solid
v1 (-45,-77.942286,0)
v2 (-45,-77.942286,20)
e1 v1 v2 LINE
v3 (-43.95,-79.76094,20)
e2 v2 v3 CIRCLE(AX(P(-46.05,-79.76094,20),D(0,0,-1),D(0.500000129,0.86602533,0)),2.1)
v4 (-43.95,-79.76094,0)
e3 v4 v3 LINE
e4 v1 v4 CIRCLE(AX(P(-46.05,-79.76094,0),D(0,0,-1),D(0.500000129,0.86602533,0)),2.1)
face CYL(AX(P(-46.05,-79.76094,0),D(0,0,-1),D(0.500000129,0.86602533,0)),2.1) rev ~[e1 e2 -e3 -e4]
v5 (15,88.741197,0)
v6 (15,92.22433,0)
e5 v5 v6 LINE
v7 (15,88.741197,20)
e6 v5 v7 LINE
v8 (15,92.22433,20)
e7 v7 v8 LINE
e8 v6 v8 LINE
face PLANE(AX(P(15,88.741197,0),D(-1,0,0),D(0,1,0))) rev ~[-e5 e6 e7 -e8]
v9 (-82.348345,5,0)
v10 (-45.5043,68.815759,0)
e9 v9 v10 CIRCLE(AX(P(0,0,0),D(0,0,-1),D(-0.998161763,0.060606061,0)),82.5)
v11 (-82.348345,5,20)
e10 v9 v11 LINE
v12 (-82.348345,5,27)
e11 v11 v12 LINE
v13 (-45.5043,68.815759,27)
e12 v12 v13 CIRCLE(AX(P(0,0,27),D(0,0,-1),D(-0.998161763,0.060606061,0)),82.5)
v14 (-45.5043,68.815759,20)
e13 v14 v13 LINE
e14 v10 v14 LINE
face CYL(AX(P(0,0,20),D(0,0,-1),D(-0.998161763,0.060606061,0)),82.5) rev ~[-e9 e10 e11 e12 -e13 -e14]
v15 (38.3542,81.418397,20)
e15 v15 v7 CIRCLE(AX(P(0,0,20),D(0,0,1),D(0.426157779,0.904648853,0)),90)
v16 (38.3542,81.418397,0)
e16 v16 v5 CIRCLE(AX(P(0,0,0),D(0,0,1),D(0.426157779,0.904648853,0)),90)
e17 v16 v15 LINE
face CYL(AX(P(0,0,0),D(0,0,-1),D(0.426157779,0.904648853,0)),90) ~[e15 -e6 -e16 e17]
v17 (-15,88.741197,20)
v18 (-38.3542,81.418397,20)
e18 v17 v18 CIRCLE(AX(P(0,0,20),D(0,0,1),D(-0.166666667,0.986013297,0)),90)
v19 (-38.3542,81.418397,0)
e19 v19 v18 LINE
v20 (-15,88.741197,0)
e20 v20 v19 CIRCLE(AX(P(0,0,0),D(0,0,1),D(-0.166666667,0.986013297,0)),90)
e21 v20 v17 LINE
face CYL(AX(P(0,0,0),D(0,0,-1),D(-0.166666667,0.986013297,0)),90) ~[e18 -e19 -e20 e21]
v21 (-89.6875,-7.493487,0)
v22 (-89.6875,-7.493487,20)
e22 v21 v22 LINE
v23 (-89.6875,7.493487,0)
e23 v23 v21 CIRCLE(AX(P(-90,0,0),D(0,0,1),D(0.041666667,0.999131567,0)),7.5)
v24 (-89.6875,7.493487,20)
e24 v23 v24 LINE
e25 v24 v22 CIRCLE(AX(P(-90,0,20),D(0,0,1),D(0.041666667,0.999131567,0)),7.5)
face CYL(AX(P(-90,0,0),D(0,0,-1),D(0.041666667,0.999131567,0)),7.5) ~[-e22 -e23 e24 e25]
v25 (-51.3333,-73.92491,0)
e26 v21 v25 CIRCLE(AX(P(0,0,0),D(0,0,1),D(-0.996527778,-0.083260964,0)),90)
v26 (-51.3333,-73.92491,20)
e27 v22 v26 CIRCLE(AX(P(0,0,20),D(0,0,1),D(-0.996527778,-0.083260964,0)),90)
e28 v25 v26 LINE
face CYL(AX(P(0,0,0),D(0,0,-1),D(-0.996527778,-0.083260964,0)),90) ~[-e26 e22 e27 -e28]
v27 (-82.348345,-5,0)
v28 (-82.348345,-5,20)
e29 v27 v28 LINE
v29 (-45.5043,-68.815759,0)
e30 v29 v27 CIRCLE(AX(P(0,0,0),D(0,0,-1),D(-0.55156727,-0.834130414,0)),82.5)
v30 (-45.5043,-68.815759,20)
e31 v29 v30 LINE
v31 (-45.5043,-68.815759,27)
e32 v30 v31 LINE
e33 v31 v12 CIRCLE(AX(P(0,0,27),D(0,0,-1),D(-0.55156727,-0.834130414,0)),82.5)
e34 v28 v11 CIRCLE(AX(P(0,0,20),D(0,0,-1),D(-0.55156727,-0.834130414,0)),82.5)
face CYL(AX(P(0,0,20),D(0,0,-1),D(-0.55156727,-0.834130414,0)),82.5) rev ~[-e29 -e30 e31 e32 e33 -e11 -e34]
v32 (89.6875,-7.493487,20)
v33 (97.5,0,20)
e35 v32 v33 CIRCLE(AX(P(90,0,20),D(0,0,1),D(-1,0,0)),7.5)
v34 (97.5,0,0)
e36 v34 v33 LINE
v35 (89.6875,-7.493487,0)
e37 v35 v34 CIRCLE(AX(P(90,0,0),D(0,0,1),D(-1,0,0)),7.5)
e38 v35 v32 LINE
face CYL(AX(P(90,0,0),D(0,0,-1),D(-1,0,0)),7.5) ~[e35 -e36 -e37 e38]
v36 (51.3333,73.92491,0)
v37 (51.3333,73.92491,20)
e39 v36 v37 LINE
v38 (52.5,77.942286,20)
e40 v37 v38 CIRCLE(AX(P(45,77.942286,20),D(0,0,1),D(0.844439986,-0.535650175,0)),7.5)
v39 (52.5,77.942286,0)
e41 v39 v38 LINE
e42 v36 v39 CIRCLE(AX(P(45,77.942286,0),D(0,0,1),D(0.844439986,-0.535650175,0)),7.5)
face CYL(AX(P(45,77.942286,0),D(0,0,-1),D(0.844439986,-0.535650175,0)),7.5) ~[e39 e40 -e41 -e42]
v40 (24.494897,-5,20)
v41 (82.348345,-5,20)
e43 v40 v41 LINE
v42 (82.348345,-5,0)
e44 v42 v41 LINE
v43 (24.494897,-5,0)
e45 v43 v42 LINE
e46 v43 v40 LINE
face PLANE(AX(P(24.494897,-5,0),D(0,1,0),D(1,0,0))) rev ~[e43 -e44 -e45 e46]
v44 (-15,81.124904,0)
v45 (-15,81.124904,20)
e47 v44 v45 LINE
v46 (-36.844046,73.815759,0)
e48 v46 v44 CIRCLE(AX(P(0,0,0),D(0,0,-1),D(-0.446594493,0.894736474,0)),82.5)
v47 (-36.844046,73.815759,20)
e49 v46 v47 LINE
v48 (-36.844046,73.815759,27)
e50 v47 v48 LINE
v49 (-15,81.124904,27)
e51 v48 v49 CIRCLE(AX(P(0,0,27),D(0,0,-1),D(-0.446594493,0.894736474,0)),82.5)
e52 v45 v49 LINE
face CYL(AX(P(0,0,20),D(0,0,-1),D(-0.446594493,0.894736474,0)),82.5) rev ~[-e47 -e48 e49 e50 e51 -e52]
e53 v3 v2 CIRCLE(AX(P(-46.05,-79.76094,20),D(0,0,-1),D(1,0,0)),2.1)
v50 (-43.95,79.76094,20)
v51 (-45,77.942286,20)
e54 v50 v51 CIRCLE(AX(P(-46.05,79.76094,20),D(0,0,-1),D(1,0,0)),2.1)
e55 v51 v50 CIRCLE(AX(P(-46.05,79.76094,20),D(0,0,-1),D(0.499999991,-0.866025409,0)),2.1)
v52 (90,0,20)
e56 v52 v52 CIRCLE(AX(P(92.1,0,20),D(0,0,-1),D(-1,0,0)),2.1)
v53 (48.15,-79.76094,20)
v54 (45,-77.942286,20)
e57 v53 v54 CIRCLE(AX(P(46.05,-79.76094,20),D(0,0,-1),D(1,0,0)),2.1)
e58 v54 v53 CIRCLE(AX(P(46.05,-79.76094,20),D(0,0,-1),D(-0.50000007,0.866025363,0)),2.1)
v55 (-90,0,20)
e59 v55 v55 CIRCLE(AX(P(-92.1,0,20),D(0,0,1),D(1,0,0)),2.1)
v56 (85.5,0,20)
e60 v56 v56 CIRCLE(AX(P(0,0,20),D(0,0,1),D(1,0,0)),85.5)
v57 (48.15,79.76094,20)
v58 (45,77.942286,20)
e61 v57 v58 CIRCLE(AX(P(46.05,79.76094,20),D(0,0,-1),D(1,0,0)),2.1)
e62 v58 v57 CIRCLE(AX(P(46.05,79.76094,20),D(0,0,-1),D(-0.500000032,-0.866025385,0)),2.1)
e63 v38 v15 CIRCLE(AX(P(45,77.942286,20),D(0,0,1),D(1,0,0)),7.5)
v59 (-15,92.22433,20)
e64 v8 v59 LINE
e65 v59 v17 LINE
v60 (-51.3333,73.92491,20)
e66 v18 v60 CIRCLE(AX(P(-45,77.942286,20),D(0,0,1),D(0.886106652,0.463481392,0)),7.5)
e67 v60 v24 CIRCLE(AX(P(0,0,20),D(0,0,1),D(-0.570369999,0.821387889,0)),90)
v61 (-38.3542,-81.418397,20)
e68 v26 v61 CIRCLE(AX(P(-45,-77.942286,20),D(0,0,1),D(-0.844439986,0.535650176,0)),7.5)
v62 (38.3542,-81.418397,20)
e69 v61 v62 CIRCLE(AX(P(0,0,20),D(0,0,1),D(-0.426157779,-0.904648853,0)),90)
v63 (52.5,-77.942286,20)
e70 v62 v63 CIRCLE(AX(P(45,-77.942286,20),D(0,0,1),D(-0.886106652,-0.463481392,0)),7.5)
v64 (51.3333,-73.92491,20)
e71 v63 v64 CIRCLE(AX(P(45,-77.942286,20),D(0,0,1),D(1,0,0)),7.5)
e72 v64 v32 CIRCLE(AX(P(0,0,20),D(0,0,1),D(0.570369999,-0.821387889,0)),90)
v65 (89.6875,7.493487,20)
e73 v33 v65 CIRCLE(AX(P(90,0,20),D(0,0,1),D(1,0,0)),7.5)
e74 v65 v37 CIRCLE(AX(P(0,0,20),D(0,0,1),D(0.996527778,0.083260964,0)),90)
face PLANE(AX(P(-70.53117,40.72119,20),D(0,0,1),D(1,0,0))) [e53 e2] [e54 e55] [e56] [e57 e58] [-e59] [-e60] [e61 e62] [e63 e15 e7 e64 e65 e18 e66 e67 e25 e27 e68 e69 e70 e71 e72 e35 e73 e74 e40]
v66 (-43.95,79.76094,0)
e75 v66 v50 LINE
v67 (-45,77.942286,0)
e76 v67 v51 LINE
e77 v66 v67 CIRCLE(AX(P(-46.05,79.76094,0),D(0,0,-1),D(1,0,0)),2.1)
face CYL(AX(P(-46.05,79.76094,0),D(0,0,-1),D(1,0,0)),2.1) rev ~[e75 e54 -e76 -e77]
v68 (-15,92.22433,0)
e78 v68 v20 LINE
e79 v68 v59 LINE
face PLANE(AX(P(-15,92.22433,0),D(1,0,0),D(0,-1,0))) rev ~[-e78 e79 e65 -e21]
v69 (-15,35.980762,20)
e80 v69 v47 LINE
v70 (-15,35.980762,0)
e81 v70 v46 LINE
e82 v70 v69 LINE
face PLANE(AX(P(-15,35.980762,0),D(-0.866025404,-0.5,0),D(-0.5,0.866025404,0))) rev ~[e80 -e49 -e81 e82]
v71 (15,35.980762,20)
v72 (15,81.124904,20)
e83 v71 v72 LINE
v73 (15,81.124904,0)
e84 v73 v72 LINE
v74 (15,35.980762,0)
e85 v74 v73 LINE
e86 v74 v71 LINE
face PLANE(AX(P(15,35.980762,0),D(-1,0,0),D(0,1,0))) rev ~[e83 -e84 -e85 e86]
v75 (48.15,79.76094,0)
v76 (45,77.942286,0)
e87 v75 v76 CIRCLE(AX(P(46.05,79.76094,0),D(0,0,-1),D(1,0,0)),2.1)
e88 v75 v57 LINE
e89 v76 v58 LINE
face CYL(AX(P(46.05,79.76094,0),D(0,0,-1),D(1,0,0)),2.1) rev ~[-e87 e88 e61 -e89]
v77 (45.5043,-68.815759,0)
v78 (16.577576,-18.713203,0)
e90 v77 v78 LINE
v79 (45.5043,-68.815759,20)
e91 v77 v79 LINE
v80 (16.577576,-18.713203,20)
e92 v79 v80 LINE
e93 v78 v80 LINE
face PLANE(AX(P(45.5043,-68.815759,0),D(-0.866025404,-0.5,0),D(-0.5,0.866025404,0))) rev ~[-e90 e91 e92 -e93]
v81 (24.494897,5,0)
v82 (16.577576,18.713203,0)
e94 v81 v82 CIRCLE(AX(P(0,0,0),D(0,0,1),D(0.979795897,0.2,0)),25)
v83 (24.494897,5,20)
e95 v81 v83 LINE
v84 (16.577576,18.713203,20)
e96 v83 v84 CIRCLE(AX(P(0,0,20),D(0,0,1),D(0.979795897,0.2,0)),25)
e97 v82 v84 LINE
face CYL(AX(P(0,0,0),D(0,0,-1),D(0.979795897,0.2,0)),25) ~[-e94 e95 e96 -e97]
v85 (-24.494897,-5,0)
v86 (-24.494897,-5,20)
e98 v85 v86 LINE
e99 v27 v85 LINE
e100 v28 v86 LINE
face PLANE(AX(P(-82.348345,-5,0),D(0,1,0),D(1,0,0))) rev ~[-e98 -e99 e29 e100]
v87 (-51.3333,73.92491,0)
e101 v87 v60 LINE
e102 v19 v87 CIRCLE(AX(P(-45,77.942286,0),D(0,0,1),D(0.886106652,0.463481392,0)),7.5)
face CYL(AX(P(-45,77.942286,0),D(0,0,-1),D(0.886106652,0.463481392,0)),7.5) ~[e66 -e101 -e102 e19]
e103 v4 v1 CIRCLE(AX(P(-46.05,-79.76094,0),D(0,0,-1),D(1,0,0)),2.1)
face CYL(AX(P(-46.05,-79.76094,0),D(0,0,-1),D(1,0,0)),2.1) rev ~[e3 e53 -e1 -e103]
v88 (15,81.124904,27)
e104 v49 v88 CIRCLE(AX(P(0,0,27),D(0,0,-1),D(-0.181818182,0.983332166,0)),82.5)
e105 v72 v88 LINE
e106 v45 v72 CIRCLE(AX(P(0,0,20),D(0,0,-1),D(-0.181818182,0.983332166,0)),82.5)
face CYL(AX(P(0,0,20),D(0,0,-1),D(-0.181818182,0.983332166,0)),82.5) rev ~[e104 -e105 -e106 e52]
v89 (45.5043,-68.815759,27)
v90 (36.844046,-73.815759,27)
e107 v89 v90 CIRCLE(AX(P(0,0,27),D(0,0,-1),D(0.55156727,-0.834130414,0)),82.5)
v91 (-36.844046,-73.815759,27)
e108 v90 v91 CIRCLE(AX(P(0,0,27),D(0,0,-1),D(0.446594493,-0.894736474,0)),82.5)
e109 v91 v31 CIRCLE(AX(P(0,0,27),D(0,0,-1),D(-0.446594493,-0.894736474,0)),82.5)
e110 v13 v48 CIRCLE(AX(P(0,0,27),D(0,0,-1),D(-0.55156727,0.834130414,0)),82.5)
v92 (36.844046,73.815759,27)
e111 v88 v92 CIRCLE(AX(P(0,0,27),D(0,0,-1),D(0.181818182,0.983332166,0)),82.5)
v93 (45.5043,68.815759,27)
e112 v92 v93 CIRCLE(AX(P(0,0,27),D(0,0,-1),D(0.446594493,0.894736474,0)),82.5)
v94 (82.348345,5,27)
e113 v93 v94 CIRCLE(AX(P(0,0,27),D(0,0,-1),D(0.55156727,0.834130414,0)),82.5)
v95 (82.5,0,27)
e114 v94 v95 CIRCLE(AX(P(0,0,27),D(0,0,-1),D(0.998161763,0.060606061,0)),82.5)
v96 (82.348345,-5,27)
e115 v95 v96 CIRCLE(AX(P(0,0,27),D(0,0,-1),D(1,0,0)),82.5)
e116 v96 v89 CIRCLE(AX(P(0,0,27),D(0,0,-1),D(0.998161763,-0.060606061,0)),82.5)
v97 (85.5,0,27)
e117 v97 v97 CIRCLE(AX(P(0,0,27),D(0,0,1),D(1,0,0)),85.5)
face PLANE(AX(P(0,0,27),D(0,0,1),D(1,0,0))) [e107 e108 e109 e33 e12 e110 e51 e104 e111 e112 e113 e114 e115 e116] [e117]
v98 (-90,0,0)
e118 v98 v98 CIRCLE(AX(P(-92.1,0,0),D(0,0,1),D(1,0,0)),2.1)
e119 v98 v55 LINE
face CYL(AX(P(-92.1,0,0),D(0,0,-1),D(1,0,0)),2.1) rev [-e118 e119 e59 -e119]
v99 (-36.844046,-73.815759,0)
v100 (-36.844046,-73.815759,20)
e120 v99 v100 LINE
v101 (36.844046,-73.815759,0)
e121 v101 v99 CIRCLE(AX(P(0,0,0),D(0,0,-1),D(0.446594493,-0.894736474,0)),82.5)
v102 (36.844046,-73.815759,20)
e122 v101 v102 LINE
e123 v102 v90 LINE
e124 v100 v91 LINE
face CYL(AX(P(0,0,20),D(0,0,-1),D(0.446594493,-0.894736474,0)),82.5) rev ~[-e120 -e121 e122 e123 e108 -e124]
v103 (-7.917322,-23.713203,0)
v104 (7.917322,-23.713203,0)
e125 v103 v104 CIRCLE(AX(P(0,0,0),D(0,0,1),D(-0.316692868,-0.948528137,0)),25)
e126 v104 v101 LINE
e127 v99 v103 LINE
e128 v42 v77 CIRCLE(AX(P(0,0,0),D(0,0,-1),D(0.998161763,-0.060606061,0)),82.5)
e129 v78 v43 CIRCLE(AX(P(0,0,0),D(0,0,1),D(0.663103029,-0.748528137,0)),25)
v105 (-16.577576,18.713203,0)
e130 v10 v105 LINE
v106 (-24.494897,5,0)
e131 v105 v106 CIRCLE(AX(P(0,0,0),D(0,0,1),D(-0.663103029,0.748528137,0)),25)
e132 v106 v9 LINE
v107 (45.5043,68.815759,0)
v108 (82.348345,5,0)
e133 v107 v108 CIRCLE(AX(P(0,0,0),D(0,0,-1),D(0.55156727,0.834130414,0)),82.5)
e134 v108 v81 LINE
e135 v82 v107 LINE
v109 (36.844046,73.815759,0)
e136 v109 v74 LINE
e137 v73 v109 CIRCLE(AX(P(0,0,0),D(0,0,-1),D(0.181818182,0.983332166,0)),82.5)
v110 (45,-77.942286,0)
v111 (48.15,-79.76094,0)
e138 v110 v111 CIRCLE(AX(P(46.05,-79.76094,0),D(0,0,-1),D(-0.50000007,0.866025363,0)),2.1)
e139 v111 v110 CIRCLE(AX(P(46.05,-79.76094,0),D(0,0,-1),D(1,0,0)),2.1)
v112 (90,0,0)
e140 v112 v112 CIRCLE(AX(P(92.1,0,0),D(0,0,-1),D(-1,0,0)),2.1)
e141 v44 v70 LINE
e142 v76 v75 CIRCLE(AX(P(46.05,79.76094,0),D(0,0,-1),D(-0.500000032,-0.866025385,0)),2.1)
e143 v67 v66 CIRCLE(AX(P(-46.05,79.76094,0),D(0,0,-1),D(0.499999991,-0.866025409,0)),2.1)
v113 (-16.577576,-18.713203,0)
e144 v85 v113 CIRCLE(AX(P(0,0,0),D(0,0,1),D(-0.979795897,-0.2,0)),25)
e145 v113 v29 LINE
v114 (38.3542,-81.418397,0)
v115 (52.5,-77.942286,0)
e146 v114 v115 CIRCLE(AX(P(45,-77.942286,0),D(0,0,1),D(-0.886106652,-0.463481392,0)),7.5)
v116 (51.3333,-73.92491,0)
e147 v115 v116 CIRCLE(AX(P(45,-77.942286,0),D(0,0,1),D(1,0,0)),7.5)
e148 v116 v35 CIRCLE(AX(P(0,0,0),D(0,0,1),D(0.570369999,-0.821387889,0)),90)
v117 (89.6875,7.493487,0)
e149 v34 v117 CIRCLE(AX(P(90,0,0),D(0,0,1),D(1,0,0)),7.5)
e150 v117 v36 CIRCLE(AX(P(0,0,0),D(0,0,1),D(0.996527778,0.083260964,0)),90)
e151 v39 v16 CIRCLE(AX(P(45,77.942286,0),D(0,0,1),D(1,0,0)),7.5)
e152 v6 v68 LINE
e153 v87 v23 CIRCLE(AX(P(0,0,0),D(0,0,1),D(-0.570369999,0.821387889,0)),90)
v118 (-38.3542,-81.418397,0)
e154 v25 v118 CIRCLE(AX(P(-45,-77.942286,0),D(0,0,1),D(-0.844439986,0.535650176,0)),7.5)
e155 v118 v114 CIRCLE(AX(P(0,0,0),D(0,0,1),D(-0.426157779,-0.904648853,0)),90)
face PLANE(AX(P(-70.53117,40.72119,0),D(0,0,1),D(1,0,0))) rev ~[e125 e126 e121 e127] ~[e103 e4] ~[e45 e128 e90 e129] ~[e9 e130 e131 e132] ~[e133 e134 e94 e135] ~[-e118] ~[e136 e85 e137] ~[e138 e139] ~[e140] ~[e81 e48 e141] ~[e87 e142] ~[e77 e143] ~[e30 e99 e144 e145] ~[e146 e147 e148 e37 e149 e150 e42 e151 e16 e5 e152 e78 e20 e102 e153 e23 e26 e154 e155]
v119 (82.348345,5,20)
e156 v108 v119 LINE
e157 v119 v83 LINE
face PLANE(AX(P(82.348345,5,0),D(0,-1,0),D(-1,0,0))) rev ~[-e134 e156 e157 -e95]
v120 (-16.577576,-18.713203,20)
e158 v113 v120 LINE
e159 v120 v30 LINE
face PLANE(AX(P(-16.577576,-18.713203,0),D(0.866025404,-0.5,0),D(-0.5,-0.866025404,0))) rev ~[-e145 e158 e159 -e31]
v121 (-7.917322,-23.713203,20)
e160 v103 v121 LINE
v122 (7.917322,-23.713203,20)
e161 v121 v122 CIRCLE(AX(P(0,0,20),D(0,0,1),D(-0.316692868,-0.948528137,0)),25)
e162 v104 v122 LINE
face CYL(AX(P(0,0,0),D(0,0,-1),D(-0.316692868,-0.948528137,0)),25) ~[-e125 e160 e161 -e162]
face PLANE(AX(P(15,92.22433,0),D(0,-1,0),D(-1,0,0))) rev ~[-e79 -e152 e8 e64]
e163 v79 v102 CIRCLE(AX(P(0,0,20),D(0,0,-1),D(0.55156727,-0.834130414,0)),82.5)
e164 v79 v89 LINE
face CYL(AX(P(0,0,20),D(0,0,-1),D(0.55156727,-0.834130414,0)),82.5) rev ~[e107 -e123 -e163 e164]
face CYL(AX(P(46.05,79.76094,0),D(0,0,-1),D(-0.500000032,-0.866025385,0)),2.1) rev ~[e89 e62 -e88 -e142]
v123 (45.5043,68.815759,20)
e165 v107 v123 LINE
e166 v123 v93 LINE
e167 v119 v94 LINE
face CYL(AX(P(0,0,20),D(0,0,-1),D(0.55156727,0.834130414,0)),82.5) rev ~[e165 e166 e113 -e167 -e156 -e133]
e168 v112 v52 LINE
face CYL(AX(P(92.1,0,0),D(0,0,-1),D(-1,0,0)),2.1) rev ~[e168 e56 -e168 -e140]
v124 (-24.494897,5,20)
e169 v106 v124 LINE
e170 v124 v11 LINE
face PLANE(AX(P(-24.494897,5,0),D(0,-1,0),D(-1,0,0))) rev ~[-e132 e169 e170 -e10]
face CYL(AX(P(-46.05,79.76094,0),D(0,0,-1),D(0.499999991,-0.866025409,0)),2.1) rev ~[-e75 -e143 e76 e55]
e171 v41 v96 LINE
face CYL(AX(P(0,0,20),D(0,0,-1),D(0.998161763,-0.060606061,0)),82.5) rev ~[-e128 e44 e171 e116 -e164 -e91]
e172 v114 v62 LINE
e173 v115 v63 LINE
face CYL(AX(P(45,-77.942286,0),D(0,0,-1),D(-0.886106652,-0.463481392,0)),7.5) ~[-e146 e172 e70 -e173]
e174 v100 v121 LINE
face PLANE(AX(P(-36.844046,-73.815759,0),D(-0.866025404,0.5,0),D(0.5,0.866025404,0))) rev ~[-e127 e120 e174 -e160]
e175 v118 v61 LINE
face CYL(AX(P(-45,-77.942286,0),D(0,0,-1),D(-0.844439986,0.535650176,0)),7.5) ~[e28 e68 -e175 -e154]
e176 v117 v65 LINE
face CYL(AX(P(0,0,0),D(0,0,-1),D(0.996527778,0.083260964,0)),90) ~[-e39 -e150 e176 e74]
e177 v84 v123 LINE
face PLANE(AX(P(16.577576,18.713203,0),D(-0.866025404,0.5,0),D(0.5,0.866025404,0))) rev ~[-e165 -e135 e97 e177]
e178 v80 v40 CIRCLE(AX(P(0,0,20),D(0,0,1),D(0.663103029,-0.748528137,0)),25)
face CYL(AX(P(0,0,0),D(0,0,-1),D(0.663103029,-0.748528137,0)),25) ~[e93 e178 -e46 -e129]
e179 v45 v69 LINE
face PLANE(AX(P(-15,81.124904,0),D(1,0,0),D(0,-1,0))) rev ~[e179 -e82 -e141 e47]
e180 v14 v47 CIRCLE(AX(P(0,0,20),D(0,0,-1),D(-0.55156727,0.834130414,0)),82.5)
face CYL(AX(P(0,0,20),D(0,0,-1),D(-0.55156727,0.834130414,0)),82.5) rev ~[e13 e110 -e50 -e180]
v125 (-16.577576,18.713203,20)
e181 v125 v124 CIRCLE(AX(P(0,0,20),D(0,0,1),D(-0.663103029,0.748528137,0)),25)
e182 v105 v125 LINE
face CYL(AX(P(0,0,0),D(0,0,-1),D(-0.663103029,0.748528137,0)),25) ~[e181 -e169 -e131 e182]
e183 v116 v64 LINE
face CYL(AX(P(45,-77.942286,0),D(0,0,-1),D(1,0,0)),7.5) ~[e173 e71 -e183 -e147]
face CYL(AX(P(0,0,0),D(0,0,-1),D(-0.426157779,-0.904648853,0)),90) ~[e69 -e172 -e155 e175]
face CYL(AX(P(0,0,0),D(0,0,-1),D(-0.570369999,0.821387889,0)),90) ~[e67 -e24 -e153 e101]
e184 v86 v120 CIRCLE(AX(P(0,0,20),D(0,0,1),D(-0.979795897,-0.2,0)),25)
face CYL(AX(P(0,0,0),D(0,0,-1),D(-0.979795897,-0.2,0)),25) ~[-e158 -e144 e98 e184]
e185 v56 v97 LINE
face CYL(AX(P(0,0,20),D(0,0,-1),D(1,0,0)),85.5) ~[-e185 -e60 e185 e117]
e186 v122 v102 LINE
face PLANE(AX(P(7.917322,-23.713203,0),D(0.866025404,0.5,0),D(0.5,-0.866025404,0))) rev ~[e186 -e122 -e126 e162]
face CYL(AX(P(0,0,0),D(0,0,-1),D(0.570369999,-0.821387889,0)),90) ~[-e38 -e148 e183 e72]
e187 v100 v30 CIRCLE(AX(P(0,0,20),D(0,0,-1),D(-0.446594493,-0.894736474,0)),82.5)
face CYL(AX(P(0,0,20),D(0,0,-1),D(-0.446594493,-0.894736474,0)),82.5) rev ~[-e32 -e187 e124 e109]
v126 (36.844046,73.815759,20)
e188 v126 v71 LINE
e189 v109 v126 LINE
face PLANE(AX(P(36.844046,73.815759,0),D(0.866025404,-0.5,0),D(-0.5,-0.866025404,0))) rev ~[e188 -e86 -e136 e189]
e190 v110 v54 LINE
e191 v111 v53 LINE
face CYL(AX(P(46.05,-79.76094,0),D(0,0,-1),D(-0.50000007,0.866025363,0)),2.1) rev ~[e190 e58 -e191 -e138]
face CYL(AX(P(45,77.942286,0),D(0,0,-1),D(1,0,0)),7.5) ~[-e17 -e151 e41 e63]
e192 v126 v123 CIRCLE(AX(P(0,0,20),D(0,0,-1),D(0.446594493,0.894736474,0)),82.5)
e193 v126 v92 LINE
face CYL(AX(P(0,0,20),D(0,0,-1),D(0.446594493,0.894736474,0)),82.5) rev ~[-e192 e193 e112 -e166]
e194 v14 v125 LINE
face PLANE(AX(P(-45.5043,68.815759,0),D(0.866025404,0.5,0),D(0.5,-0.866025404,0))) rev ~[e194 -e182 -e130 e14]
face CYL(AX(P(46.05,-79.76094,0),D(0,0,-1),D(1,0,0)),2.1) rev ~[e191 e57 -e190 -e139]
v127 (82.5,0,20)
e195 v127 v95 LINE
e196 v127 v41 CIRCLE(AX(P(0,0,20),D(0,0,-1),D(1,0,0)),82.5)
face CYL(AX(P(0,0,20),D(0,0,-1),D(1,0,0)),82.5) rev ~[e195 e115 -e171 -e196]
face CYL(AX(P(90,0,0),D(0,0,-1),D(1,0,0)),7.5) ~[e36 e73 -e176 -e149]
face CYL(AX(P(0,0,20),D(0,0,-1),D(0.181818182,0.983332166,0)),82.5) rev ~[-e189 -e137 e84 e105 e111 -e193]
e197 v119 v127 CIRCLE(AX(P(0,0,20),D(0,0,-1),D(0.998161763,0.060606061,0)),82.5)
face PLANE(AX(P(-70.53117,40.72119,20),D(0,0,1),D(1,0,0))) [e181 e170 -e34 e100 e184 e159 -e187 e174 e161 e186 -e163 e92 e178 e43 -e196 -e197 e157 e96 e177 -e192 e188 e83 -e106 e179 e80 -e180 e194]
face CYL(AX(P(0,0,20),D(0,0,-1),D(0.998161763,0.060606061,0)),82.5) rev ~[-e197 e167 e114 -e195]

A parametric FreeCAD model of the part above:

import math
import FreeCAD as App
import Part
import Sketcher

V = App.Vector
Q = App.Units.Quantity

doc = App.newDocument("Part")
body = doc.addObject("PartDesign::Body", "Body")

# Sketch on XY plane
sketch1 = doc.addObject("Sketcher::SketchObject", "Sketch")
body.addObject(sketch1)
sketch1.AttachmentSupport = (doc.XY_Plane, [""])
sketch1.MapMode = "FlatFace"
sketch1.addGeometry([
    Part.ArcOfCircle(Part.Circle(V(0, 0, 0), V(0, 0, 1), 90), math.radians(124.776031), math.radians(175.223969)),  # 0
    Part.ArcOfCircle(Part.Circle(V(-90, 0, 0), V(0, 0, 1), 7.5), math.radians(87.611985), math.radians(272.388015)),  # 1
    Part.ArcOfCircle(Part.Circle(V(0, 0, 0), V(0, 0, 1), 90), math.radians(-175.223969), math.radians(-124.776031)),  # 2
    Part.ArcOfCircle(Part.Circle(V(-45, -77.942286, 0), V(0, 0, 1), 7.5), math.radians(147.611985), math.radians(332.388015)),  # 3
    Part.ArcOfCircle(Part.Circle(V(0, 0, 0), V(0, 0, 1), 90), math.radians(-115.223969), math.radians(-64.776031)),  # 4
    Part.ArcOfCircle(Part.Circle(V(45, -77.942286, 0), V(0, 0, 1), 7.5), math.radians(-152.388015), math.radians(0)),  # 5
    Part.ArcOfCircle(Part.Circle(V(45, -77.942286, 0), V(0, 0, 1), 7.5), math.radians(0), math.radians(32.388015)),  # 6
    Part.ArcOfCircle(Part.Circle(V(0, 0, 0), V(0, 0, 1), 90), math.radians(-55.223969), math.radians(-4.776031)),  # 7
    Part.ArcOfCircle(Part.Circle(V(90, 0, 0), V(0, 0, 1), 7.5), math.radians(-92.388015), math.radians(0)),  # 8
    Part.ArcOfCircle(Part.Circle(V(90, 0, 0), V(0, 0, 1), 7.5), math.radians(0), math.radians(92.388015)),  # 9
    Part.ArcOfCircle(Part.Circle(V(0, 0, 0), V(0, 0, 1), 90), math.radians(4.776031), math.radians(55.223969)),  # 10
    Part.ArcOfCircle(Part.Circle(V(45, 77.942286, 0), V(0, 0, 1), 7.5), math.radians(-32.388015), math.radians(0)),  # 11
    Part.ArcOfCircle(Part.Circle(V(45, 77.942286, 0), V(0, 0, 1), 7.5), math.radians(0), math.radians(152.388015)),  # 12
    Part.ArcOfCircle(Part.Circle(V(0, 0, 0), V(0, 0, 1), 90), math.radians(64.776031), math.radians(80.405932)),  # 13
    Part.LineSegment(V(15, 88.741197, 0), V(15, 92.22433, 0)),  # 14
    Part.LineSegment(V(15, 92.22433, 0), V(-15, 92.22433, 0)),  # 15
    Part.LineSegment(V(-15, 92.22433, 0), V(-15, 88.741197, 0)),  # 16
    Part.ArcOfCircle(Part.Circle(V(0, 0, 0), V(0, 0, 1), 90), math.radians(99.594068), math.radians(115.223969)),  # 17
    Part.ArcOfCircle(Part.Circle(V(-45, 77.942286, 0), V(0, 0, 1), 7.5), math.radians(27.611985), math.radians(212.388015)),  # 18
    Part.ArcOfCircle(Part.Circle(V(-46.05, -79.76094, 0), V(0, 0, 1), 2.1), math.radians(0), math.radians(59.999991)),  # 19
    Part.ArcOfCircle(Part.Circle(V(-46.05, -79.76094, 0), V(0, 0, 1), 2.1), math.radians(59.999991), math.radians(360)),  # 20
    Part.Circle(V(-92.1, 0, 0), V(0, 0, 1), 2.1),  # 21
    Part.ArcOfCircle(Part.Circle(V(46.05, -79.76094, 0), V(0, 0, 1), 2.1), math.radians(0), math.radians(120.000005)),  # 22
    Part.ArcOfCircle(Part.Circle(V(46.05, -79.76094, 0), V(0, 0, 1), 2.1), math.radians(120.000005), math.radians(360)),  # 23
    Part.Circle(V(92.1, 0, 0), V(0, 0, 1), 2.1),  # 24
    Part.ArcOfCircle(Part.Circle(V(0, 0, 0), V(0, 0, 1), 82.5), math.radians(-176.525399), math.radians(-123.474601)),  # 25
    Part.LineSegment(V(-82.348345, -5, 0), V(-24.494897, -5, 0)),  # 26
    Part.ArcOfCircle(Part.Circle(V(0, 0, 0), V(0, 0, 1), 25), math.radians(-168.463041), math.radians(-131.536959)),  # 27
    Part.LineSegment(V(-16.577576, -18.713203, 0), V(-45.5043, -68.815759, 0)),  # 28
    Part.LineSegment(V(-24.494897, 5, 0), V(-82.348345, 5, 0)),  # 29
    Part.ArcOfCircle(Part.Circle(V(0, 0, 0), V(0, 0, 1), 82.5), math.radians(123.474601), math.radians(176.525399)),  # 30
    Part.LineSegment(V(-45.5043, 68.815759, 0), V(-16.577576, 18.713203, 0)),  # 31
    Part.ArcOfCircle(Part.Circle(V(0, 0, 0), V(0, 0, 1), 25), math.radians(131.536959), math.radians(168.463041)),  # 32
    Part.LineSegment(V(-15, 35.980762, 0), V(-36.844046, 73.815759, 0)),  # 33
    Part.ArcOfCircle(Part.Circle(V(0, 0, 0), V(0, 0, 1), 82.5), math.radians(100.475682), math.radians(116.525399)),  # 34
    Part.LineSegment(V(-15, 81.124904, 0), V(-15, 35.980762, 0)),  # 35
    Part.ArcOfCircle(Part.Circle(V(0, 0, 0), V(0, 0, 1), 82.5), math.radians(63.474601), math.radians(79.524318)),  # 36
    Part.LineSegment(V(36.844046, 73.815759, 0), V(15, 35.980762, 0)),  # 37
    Part.LineSegment(V(15, 35.980762, 0), V(15, 81.124904, 0)),  # 38
    Part.LineSegment(V(16.577576, 18.713203, 0), V(45.5043, 68.815759, 0)),  # 39
    Part.ArcOfCircle(Part.Circle(V(0, 0, 0), V(0, 0, 1), 82.5), math.radians(3.474601), math.radians(56.525399)),  # 40
    Part.LineSegment(V(82.348345, 5, 0), V(24.494897, 5, 0)),  # 41
    Part.ArcOfCircle(Part.Circle(V(0, 0, 0), V(0, 0, 1), 25), math.radians(11.536959), math.radians(48.463041)),  # 42
    Part.LineSegment(V(24.494897, -5, 0), V(82.348345, -5, 0)),  # 43
    Part.ArcOfCircle(Part.Circle(V(0, 0, 0), V(0, 0, 1), 82.5), math.radians(-56.525399), math.radians(-3.474601)),  # 44
    Part.LineSegment(V(45.5043, -68.815759, 0), V(16.577576, -18.713203, 0)),  # 45
    Part.ArcOfCircle(Part.Circle(V(0, 0, 0), V(0, 0, 1), 25), math.radians(-48.463041), math.radians(-11.536959)),  # 46
    Part.LineSegment(V(7.917322, -23.713203, 0), V(36.844046, -73.815759, 0)),  # 47
    Part.ArcOfCircle(Part.Circle(V(0, 0, 0), V(0, 0, 1), 82.5), math.radians(-116.525399), math.radians(-63.474601)),  # 48
    Part.LineSegment(V(-36.844046, -73.815759, 0), V(-7.917322, -23.713203, 0)),  # 49
    Part.ArcOfCircle(Part.Circle(V(0, 0, 0), V(0, 0, 1), 25), math.radians(-108.463041), math.radians(-71.536959)),  # 50
    Part.ArcOfCircle(Part.Circle(V(-46.05, 79.76094, 0), V(0, 0, 1), 2.1), math.radians(0), math.radians(299.999999)),  # 51
    Part.ArcOfCircle(Part.Circle(V(-46.05, 79.76094, 0), V(0, 0, 1), 2.1), math.radians(-60.000001), math.radians(0)),  # 52
    Part.ArcOfCircle(Part.Circle(V(46.05, 79.76094, 0), V(0, 0, 1), 2.1), math.radians(0), math.radians(239.999998)),  # 53
    Part.ArcOfCircle(Part.Circle(V(46.05, 79.76094, 0), V(0, 0, 1), 2.1), math.radians(-120.000002), math.radians(0)),  # 54
], False)
sketch1.addConstraint([
    Sketcher.Constraint("Coincident", 0, 2, 1, 1),
    Sketcher.Constraint("Coincident", 1, 2, 2, 1),
    Sketcher.Constraint("Coincident", 2, 2, 3, 1),
    Sketcher.Constraint("Coincident", 3, 2, 4, 1),
    Sketcher.Constraint("Coincident", 4, 2, 5, 1),
    Sketcher.Constraint("Tangent", 5, 2, 6, 1),
    Sketcher.Constraint("Coincident", 6, 2, 7, 1),
    Sketcher.Constraint("Coincident", 7, 2, 8, 1),
    Sketcher.Constraint("Tangent", 8, 2, 9, 1),
    Sketcher.Constraint("Coincident", 9, 2, 10, 1),
    Sketcher.Constraint("Coincident", 10, 2, 11, 1),
    Sketcher.Constraint("Tangent", 11, 2, 12, 1),
    Sketcher.Constraint("Coincident", 12, 2, 13, 1),
    Sketcher.Constraint("Coincident", 13, 2, 14, 1),
    Sketcher.Constraint("Coincident", 14, 2, 15, 1),
    Sketcher.Constraint("Coincident", 15, 2, 16, 1),
    Sketcher.Constraint("Coincident", 16, 2, 17, 1),
    Sketcher.Constraint("Coincident", 17, 2, 18, 1),
    Sketcher.Constraint("Coincident", 18, 2, 0, 1),
    Sketcher.Constraint("Tangent", 19, 1, 20, 2),
    Sketcher.Constraint("Coincident", 20, 1, 19, 2),
    Sketcher.Constraint("Tangent", 22, 1, 23, 2),
    Sketcher.Constraint("Coincident", 23, 1, 22, 2),
    Sketcher.Constraint("Coincident", 25, 1, 26, 1),
    Sketcher.Constraint("Coincident", 26, 2, 27, 1),
    Sketcher.Constraint("Coincident", 27, 2, 28, 1),
    Sketcher.Constraint("Coincident", 28, 2, 25, 2),
    Sketcher.Constraint("Coincident", 29, 2, 30, 2),
    Sketcher.Constraint("Coincident", 30, 1, 31, 1),
    Sketcher.Constraint("Coincident", 31, 2, 32, 1),
    Sketcher.Constraint("Coincident", 32, 2, 29, 1),
    Sketcher.Constraint("Coincident", 33, 2, 34, 2),
    Sketcher.Constraint("Coincident", 34, 1, 35, 1),
    Sketcher.Constraint("Coincident", 35, 2, 33, 1),
    Sketcher.Constraint("Coincident", 36, 1, 37, 1),
    Sketcher.Constraint("Coincident", 37, 2, 38, 1),
    Sketcher.Constraint("Coincident", 38, 2, 36, 2),
    Sketcher.Constraint("Coincident", 39, 2, 40, 2),
    Sketcher.Constraint("Coincident", 40, 1, 41, 1),
    Sketcher.Constraint("Coincident", 41, 2, 42, 1),
    Sketcher.Constraint("Coincident", 42, 2, 39, 1),
    Sketcher.Constraint("Coincident", 43, 2, 44, 2),
    Sketcher.Constraint("Coincident", 44, 1, 45, 1),
    Sketcher.Constraint("Coincident", 45, 2, 46, 1),
    Sketcher.Constraint("Coincident", 46, 2, 43, 1),
    Sketcher.Constraint("Coincident", 47, 2, 48, 2),
    Sketcher.Constraint("Coincident", 48, 1, 49, 1),
    Sketcher.Constraint("Coincident", 49, 2, 50, 1),
    Sketcher.Constraint("Coincident", 50, 2, 47, 1),
    Sketcher.Constraint("Tangent", 51, 1, 52, 2),
    Sketcher.Constraint("Coincident", 52, 1, 51, 2),
    Sketcher.Constraint("Tangent", 53, 1, 54, 2),
    Sketcher.Constraint("Coincident", 54, 1, 53, 2),
    Sketcher.Constraint("Vertical", 14),
    Sketcher.Constraint("Horizontal", 15),
    Sketcher.Constraint("Vertical", 16),
    Sketcher.Constraint("Horizontal", 26),
    Sketcher.Constraint("Horizontal", 29),
    Sketcher.Constraint("Vertical", 35),
    Sketcher.Constraint("Vertical", 38),
    Sketcher.Constraint("Horizontal", 41),
    Sketcher.Constraint("Horizontal", 43),
    Sketcher.Constraint("Coincident", 0, 3, -1, 1),
    Sketcher.Constraint("Coincident", 2, 3, -1, 1),
    Sketcher.Constraint("Coincident", 4, 3, -1, 1),
    Sketcher.Constraint("Coincident", 7, 3, -1, 1),
    Sketcher.Constraint("Coincident", 10, 3, -1, 1),
    Sketcher.Constraint("Coincident", 13, 3, -1, 1),
    Sketcher.Constraint("Coincident", 17, 3, -1, 1),
    Sketcher.Constraint("Coincident", 25, 3, -1, 1),
    Sketcher.Constraint("Coincident", 27, 3, -1, 1),
    Sketcher.Constraint("Coincident", 30, 3, -1, 1),
    Sketcher.Constraint("Coincident", 32, 3, -1, 1),
    Sketcher.Constraint("Coincident", 34, 3, -1, 1),
    Sketcher.Constraint("Coincident", 36, 3, -1, 1),
    Sketcher.Constraint("Coincident", 40, 3, -1, 1),
    Sketcher.Constraint("Coincident", 42, 3, -1, 1),
    Sketcher.Constraint("Coincident", 44, 3, -1, 1),
    Sketcher.Constraint("Coincident", 46, 3, -1, 1),
    Sketcher.Constraint("Coincident", 48, 3, -1, 1),
    Sketcher.Constraint("Coincident", 50, 3, -1, 1),
    Sketcher.Constraint("Coincident", 20, 1, 3, 3),
    Sketcher.Constraint("Coincident", 23, 1, 5, 3),
    Sketcher.Constraint("Coincident", 52, 1, 18, 3),
    Sketcher.Constraint("Coincident", 54, 1, 11, 3),
    Sketcher.Constraint("Equal", 0, 2),
    Sketcher.Constraint("Equal", 1, 3),
    Sketcher.Constraint("Equal", 2, 4),
    Sketcher.Constraint("Equal", 3, 5),
    Sketcher.Constraint("Equal", 5, 6),
    Sketcher.Constraint("Equal", 4, 7),
    Sketcher.Constraint("Equal", 6, 8),
    Sketcher.Constraint("Equal", 8, 9),
    Sketcher.Constraint("Equal", 7, 10),
    Sketcher.Constraint("Equal", 9, 11),
    Sketcher.Constraint("Equal", 11, 12),
    Sketcher.Constraint("Equal", 10, 13),
    Sketcher.Constraint("Equal", 13, 17),
    Sketcher.Constraint("Equal", 12, 18),
    Sketcher.Constraint("Equal", 20, 21),
    Sketcher.Constraint("Equal", 21, 22),
    Sketcher.Constraint("Equal", 23, 24),
    Sketcher.Constraint("Equal", 25, 30),
    Sketcher.Constraint("Equal", 27, 32),
    Sketcher.Constraint("Equal", 30, 34),
    Sketcher.Constraint("Equal", 34, 36),
    Sketcher.Constraint("Equal", 36, 40),
    Sketcher.Constraint("Equal", 32, 42),
    Sketcher.Constraint("Equal", 40, 44),
    Sketcher.Constraint("Equal", 42, 46),
    Sketcher.Constraint("Equal", 44, 48),
    Sketcher.Constraint("Equal", 46, 50),
    Sketcher.Constraint("Equal", 24, 51),
    Sketcher.Constraint("Equal", 52, 53),
    Sketcher.Constraint("Symmetric", 1, 3, 8, 3, -1, 1),
    Sketcher.Constraint("Symmetric", 3, 3, 11, 3, -1, 1),
    Sketcher.Constraint("Symmetric", 5, 3, 18, 3, -1, 1),
    Sketcher.Constraint("Symmetric", 21, 3, 24, 3, -1, 1),
    Sketcher.Constraint("Symmetric", 3, 3, 5, 3, -2),
    Sketcher.Constraint("Symmetric", 35, 2, 37, 2, -2),
    Sketcher.Constraint("Symmetric", 19, 1, 51, 1, -1),
    Sketcher.Constraint("Symmetric", 22, 1, 53, 1, -1),
    Sketcher.Constraint("PointOnObject", 1, 3, -1),
    Sketcher.Constraint("PointOnObject", 21, 3, -1),
    Sketcher.Constraint("PointOnObject", 8, 2, -1),
    Sketcher.Constraint("Parallel", 31, 33),
    Sketcher.Constraint("Parallel", 28, 37),
    Sketcher.Constraint("Parallel", 37, 39),
    Sketcher.Constraint("Parallel", 33, 45),
    Sketcher.Constraint("Parallel", 45, 47),
    Sketcher.Constraint("Parallel", 39, 49),
    Sketcher.Constraint("Horizontal", 20, 3, 22, 3),
    Sketcher.Constraint("Horizontal", 6, 3, 5, 2),
    Sketcher.Constraint("Horizontal", 18, 3, 11, 2),
    Sketcher.Constraint("Horizontal", 13, 2, 16, 2),
    Sketcher.Constraint("Horizontal", 23, 3, 19, 1),
    Sketcher.Constraint("Horizontal", 19, 1, 22, 1),
    Sketcher.Constraint("Horizontal", 33, 2, 36, 1),
    Sketcher.Constraint("Horizontal", 30, 1, 39, 2),
    Sketcher.Constraint("Horizontal", 32, 2, 40, 1),
    Sketcher.Constraint("Horizontal", 26, 2, 43, 2),
    Sketcher.Constraint("Horizontal", 28, 2, 44, 1),
    Sketcher.Constraint("Horizontal", 47, 2, 48, 1),
    Sketcher.Constraint("Vertical", 25, 1, 29, 2),
    Sketcher.Constraint("Vertical", 28, 2, 30, 1),
    Sketcher.Constraint("Vertical", 16, 2, 34, 1),
    Sketcher.Constraint("Vertical", 36, 1, 47, 2),
    Sketcher.Constraint("Equal", 45, 47),
    Sketcher.Constraint("Radius", 0, 90.0),
    Sketcher.Constraint("Radius", 27, 25.0),
    Sketcher.Constraint("Diameter", 21, 4.2),
    Sketcher.Constraint("Radius", 1, 7.5),
    Sketcher.Constraint("Radius", 25, 82.5),
    Sketcher.Constraint("DistanceX", 15, 2, 15, 1, 30.0),
    Sketcher.Constraint("Angle", 28, Q("-120 deg")),
    Sketcher.Constraint("DistanceX", 1, 3, -1, 1, 90.0),
    Sketcher.Constraint("DistanceX", 3, 3, -1, 1, 45.0),
    Sketcher.Constraint("DistanceY", 25, 1, -1, 1, 5.0),
    Sketcher.Constraint("DistanceX", 21, 3, -1, 1, 92.1),
    Sketcher.Constraint("DistanceX", 19, 3, -1, 1, 46.05),
    Sketcher.Constraint("DistanceY", 35, 2, 35, 1, 45.144142),
    Sketcher.Constraint("DistanceX", 3, 2, -1, 1, 38.3542),
    Sketcher.Constraint("DistanceY", 14, 1, 14, 2, 3.483133),
])
pad1 = doc.addObject("PartDesign::Pad", "Pad")
body.addObject(pad1)
pad1.Profile = sketch1
pad1.Length = 20

# Sketch on XY plane
sketch2 = doc.addObject("Sketcher::SketchObject", "Sketch001")
body.addObject(sketch2)
sketch2.AttachmentSupport = (doc.XY_Plane, [""])
sketch2.MapMode = "FlatFace"
sketch2.AttachmentOffset = App.Placement(V(0, 0, 20), App.Rotation())
sketch2.addGeometry([
    Part.Circle(V(0, 0, 0), V(0, 0, 1), 85.5),  # 0
    Part.ArcOfCircle(Part.Circle(V(0, 0, 0), V(0, 0, 1), 82.5), math.radians(3.474601), math.radians(56.525399)),  # 1
    Part.ArcOfCircle(Part.Circle(V(0, 0, 0), V(0, 0, 1), 82.5), math.radians(0), math.radians(3.474601)),  # 2
    Part.ArcOfCircle(Part.Circle(V(0, 0, 0), V(0, 0, 1), 82.5), math.radians(-3.474601), math.radians(0)),  # 3
    Part.ArcOfCircle(Part.Circle(V(0, 0, 0), V(0, 0, 1), 82.5), math.radians(-56.525399), math.radians(-3.474601)),  # 4
    Part.ArcOfCircle(Part.Circle(V(0, 0, 0), V(0, 0, 1), 82.5), math.radians(-63.474601), math.radians(-56.525399)),  # 5
    Part.ArcOfCircle(Part.Circle(V(0, 0, 0), V(0, 0, 1), 82.5), math.radians(-116.525399), math.radians(-63.474601)),  # 6
    Part.ArcOfCircle(Part.Circle(V(0, 0, 0), V(0, 0, 1), 82.5), math.radians(-123.474601), math.radians(-116.525399)),  # 7
    Part.ArcOfCircle(Part.Circle(V(0, 0, 0), V(0, 0, 1), 82.5), math.radians(176.525399), math.radians(236.525399)),  # 8
    Part.ArcOfCircle(Part.Circle(V(0, 0, 0), V(0, 0, 1), 82.5), math.radians(123.474601), math.radians(176.525399)),  # 9
    Part.ArcOfCircle(Part.Circle(V(0, 0, 0), V(0, 0, 1), 82.5), math.radians(116.525399), math.radians(123.474601)),  # 10
    Part.ArcOfCircle(Part.Circle(V(0, 0, 0), V(0, 0, 1), 82.5), math.radians(100.475682), math.radians(116.525399)),  # 11
    Part.ArcOfCircle(Part.Circle(V(0, 0, 0), V(0, 0, 1), 82.5), math.radians(79.524318), math.radians(100.475682)),  # 12
    Part.ArcOfCircle(Part.Circle(V(0, 0, 0), V(0, 0, 1), 82.5), math.radians(63.474601), math.radians(79.524318)),  # 13
    Part.ArcOfCircle(Part.Circle(V(0, 0, 0), V(0, 0, 1), 82.5), math.radians(56.525399), math.radians(63.474601)),  # 14
], False)
sketch2.addConstraint([
    Sketcher.Constraint("Tangent", 1, 1, 2, 2),
    Sketcher.Constraint("Tangent", 2, 1, 3, 2),
    Sketcher.Constraint("Tangent", 3, 1, 4, 2),
    Sketcher.Constraint("Tangent", 4, 1, 5, 2),
    Sketcher.Constraint("Tangent", 5, 1, 6, 2),
    Sketcher.Constraint("Tangent", 6, 1, 7, 2),
    Sketcher.Constraint("Tangent", 7, 1, 8, 2),
    Sketcher.Constraint("Tangent", 8, 1, 9, 2),
    Sketcher.Constraint("Tangent", 9, 1, 10, 2),
    Sketcher.Constraint("Tangent", 10, 1, 11, 2),
    Sketcher.Constraint("Tangent", 11, 1, 12, 2),
    Sketcher.Constraint("Tangent", 12, 1, 13, 2),
    Sketcher.Constraint("Tangent", 13, 1, 14, 2),
    Sketcher.Constraint("Tangent", 14, 1, 1, 2),
    Sketcher.Constraint("Coincident", 0, 3, -1, 1),
    Sketcher.Constraint("Coincident", 1, 3, -1, 1),
    Sketcher.Constraint("Coincident", 3, 3, -1, 1),
    Sketcher.Constraint("Coincident", 5, 3, -1, 1),
    Sketcher.Constraint("Coincident", 7, 3, -1, 1),
    Sketcher.Constraint("Coincident", 9, 3, -1, 1),
    Sketcher.Constraint("Coincident", 11, 3, -1, 1),
    Sketcher.Constraint("Equal", 11, 12),
    Sketcher.Constraint("PointOnObject", 2, 1, -1),
    Sketcher.Constraint("Horizontal", 5, 1, 6, 1),
    Sketcher.Constraint("Horizontal", 4, 1, 7, 1),
    Sketcher.Constraint("Horizontal", 1, 1, 8, 1),
    Sketcher.Constraint("Horizontal", 11, 1, 12, 1),
    Sketcher.Constraint("Horizontal", 10, 1, 13, 1),
    Sketcher.Constraint("Horizontal", 9, 1, 14, 1),
    Sketcher.Constraint("Vertical", 1, 1, 3, 1),
    Sketcher.Constraint("Vertical", 7, 1, 9, 1),
    Sketcher.Constraint("Vertical", 6, 1, 10, 1),
    Sketcher.Constraint("Diameter", 0, 171.0),
    Sketcher.Constraint("Radius", 1, 82.5),
    Sketcher.Constraint("DistanceY", -1, 1, 1, 1, 5.0),
    Sketcher.Constraint("DistanceX", 11, 1, -1, 1, 15.0),
    Sketcher.Constraint("DistanceY", 5, 1, 4, 1, 5.0),
    Sketcher.Constraint("DistanceX", -1, 1, 4, 1, 45.5043),
])
pad2 = doc.addObject("PartDesign::Pad", "Pad001")
body.addObject(pad2)
pad2.Profile = sketch2
pad2.Length = 7

doc.recompute()
